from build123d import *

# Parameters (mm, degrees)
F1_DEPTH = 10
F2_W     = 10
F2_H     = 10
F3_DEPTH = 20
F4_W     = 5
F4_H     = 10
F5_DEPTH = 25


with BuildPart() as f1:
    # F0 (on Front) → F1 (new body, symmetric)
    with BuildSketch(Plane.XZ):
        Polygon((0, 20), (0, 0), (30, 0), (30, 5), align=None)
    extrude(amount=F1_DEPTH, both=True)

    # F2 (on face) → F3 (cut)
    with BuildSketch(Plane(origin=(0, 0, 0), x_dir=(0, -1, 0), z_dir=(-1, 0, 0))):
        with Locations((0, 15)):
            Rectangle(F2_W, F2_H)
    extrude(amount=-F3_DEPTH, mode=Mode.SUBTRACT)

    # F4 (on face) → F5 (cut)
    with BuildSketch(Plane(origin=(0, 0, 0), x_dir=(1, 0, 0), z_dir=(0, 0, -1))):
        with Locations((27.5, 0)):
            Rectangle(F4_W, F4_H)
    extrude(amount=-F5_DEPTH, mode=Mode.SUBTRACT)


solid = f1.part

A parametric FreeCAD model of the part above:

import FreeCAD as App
import Part
import Sketcher
Q = App.Units.Quantity


def add_polygon(sketch, points):
    """Adds a closed chain of lines whose ends are joined by coincident constraints."""
    first, n = sketch.GeometryCount, len(points)
    for a, b in zip(points, points[1:] + points[:1]):
        sketch.addGeometry(Part.LineSegment(App.Vector(*a, 0), App.Vector(*b, 0)), False)
    for i in range(n):
        sketch.addConstraint(Sketcher.Constraint("Coincident", first + i, 2, first + (i + 1) % n, 1))

doc = App.newDocument("Part")
body = doc.addObject("PartDesign::Body", "Body")

# Sketch on XZ plane
sketch1 = body.newObject("Sketcher::SketchObject", "Sketch")
sketch1.AttachmentSupport = (doc.getObject("XZ_Plane"), [""])
sketch1.MapMode = "FlatFace"
add_polygon(sketch1, [(0, 20), (0, 0), (30, 0), (30, 5)])  # lines 0-3
sketch1.addConstraint([
    Sketcher.Constraint("Vertical", 0),
    Sketcher.Constraint("Horizontal", 1),
    Sketcher.Constraint("Vertical", 2),
    Sketcher.Constraint("Coincident", 0, 2, -1, 1),
    Sketcher.Constraint("DistanceX", 1, 1, 1, 2, Q("30 mm")),
    Sketcher.Constraint("DistanceY", 0, 2, 0, 1, Q("20 mm")),
    Sketcher.Constraint("DistanceY", 2, 1, 2, 2, Q("5 mm")),
])
pad1 = body.newObject("PartDesign::Pad", "Pad")
pad1.Profile = sketch1
pad1.Length = 20
pad1.Midplane = True

# Sketch on YZ plane
sketch2 = body.newObject("Sketcher::SketchObject", "Sketch001")
sketch2.AttachmentSupport = (doc.getObject("YZ_Plane"), [""])
sketch2.MapMode = "FlatFace"
add_polygon(sketch2, [(5, 20), (5, 10), (-5, 10), (-5, 20)])  # lines 0-3
sketch2.addConstraint([
    Sketcher.Constraint("Vertical", 0),
    Sketcher.Constraint("Horizontal", 1),
    Sketcher.Constraint("Vertical", 2),
    Sketcher.Constraint("Horizontal", 3),
    Sketcher.Constraint("Equal", 3, 0),
    Sketcher.Constraint("DistanceX", 1, 2, 1, 1, Q("10 mm")),
    Sketcher.Constraint("DistanceX", -1, 1, 0, 2, Q("5 mm")),
    Sketcher.Constraint("DistanceY", -1, 1, 0, 2, Q("10 mm")),
])
pocket1 = body.newObject("PartDesign::Pocket", "Pocket")
pocket1.Profile = sketch2
pocket1.Length = 20
pocket1.Reversed = True

# Sketch on XY plane
sketch3 = body.newObject("Sketcher::SketchObject", "Sketch002")
sketch3.AttachmentSupport = (doc.getObject("XY_Plane"), [""])
sketch3.MapMode = "FlatFace"
add_polygon(sketch3, [(25, -5), (25, 5), (30, 5), (30, -5)])  # lines 0-3
sketch3.addConstraint([
    Sketcher.Constraint("Vertical", 0),
    Sketcher.Constraint("Horizontal", 1),
    Sketcher.Constraint("Vertical", 2),
    Sketcher.Constraint("Horizontal", 3),
    Sketcher.Constraint("DistanceX", 1, 1, 1, 2, Q("5 mm")),
    Sketcher.Constraint("DistanceY", 0, 1, 0, 2, Q("10 mm")),
    Sketcher.Constraint("DistanceX", -1, 1, 0, 2, Q("25 mm")),
    Sketcher.Constraint("DistanceY", -1, 1, 0, 2, Q("5 mm")),
])
pocket2 = body.newObject("PartDesign::Pocket", "Pocket001")
pocket2.Profile = sketch3
pocket2.Length = 25
pocket2.Reversed = True

doc.recompute()
